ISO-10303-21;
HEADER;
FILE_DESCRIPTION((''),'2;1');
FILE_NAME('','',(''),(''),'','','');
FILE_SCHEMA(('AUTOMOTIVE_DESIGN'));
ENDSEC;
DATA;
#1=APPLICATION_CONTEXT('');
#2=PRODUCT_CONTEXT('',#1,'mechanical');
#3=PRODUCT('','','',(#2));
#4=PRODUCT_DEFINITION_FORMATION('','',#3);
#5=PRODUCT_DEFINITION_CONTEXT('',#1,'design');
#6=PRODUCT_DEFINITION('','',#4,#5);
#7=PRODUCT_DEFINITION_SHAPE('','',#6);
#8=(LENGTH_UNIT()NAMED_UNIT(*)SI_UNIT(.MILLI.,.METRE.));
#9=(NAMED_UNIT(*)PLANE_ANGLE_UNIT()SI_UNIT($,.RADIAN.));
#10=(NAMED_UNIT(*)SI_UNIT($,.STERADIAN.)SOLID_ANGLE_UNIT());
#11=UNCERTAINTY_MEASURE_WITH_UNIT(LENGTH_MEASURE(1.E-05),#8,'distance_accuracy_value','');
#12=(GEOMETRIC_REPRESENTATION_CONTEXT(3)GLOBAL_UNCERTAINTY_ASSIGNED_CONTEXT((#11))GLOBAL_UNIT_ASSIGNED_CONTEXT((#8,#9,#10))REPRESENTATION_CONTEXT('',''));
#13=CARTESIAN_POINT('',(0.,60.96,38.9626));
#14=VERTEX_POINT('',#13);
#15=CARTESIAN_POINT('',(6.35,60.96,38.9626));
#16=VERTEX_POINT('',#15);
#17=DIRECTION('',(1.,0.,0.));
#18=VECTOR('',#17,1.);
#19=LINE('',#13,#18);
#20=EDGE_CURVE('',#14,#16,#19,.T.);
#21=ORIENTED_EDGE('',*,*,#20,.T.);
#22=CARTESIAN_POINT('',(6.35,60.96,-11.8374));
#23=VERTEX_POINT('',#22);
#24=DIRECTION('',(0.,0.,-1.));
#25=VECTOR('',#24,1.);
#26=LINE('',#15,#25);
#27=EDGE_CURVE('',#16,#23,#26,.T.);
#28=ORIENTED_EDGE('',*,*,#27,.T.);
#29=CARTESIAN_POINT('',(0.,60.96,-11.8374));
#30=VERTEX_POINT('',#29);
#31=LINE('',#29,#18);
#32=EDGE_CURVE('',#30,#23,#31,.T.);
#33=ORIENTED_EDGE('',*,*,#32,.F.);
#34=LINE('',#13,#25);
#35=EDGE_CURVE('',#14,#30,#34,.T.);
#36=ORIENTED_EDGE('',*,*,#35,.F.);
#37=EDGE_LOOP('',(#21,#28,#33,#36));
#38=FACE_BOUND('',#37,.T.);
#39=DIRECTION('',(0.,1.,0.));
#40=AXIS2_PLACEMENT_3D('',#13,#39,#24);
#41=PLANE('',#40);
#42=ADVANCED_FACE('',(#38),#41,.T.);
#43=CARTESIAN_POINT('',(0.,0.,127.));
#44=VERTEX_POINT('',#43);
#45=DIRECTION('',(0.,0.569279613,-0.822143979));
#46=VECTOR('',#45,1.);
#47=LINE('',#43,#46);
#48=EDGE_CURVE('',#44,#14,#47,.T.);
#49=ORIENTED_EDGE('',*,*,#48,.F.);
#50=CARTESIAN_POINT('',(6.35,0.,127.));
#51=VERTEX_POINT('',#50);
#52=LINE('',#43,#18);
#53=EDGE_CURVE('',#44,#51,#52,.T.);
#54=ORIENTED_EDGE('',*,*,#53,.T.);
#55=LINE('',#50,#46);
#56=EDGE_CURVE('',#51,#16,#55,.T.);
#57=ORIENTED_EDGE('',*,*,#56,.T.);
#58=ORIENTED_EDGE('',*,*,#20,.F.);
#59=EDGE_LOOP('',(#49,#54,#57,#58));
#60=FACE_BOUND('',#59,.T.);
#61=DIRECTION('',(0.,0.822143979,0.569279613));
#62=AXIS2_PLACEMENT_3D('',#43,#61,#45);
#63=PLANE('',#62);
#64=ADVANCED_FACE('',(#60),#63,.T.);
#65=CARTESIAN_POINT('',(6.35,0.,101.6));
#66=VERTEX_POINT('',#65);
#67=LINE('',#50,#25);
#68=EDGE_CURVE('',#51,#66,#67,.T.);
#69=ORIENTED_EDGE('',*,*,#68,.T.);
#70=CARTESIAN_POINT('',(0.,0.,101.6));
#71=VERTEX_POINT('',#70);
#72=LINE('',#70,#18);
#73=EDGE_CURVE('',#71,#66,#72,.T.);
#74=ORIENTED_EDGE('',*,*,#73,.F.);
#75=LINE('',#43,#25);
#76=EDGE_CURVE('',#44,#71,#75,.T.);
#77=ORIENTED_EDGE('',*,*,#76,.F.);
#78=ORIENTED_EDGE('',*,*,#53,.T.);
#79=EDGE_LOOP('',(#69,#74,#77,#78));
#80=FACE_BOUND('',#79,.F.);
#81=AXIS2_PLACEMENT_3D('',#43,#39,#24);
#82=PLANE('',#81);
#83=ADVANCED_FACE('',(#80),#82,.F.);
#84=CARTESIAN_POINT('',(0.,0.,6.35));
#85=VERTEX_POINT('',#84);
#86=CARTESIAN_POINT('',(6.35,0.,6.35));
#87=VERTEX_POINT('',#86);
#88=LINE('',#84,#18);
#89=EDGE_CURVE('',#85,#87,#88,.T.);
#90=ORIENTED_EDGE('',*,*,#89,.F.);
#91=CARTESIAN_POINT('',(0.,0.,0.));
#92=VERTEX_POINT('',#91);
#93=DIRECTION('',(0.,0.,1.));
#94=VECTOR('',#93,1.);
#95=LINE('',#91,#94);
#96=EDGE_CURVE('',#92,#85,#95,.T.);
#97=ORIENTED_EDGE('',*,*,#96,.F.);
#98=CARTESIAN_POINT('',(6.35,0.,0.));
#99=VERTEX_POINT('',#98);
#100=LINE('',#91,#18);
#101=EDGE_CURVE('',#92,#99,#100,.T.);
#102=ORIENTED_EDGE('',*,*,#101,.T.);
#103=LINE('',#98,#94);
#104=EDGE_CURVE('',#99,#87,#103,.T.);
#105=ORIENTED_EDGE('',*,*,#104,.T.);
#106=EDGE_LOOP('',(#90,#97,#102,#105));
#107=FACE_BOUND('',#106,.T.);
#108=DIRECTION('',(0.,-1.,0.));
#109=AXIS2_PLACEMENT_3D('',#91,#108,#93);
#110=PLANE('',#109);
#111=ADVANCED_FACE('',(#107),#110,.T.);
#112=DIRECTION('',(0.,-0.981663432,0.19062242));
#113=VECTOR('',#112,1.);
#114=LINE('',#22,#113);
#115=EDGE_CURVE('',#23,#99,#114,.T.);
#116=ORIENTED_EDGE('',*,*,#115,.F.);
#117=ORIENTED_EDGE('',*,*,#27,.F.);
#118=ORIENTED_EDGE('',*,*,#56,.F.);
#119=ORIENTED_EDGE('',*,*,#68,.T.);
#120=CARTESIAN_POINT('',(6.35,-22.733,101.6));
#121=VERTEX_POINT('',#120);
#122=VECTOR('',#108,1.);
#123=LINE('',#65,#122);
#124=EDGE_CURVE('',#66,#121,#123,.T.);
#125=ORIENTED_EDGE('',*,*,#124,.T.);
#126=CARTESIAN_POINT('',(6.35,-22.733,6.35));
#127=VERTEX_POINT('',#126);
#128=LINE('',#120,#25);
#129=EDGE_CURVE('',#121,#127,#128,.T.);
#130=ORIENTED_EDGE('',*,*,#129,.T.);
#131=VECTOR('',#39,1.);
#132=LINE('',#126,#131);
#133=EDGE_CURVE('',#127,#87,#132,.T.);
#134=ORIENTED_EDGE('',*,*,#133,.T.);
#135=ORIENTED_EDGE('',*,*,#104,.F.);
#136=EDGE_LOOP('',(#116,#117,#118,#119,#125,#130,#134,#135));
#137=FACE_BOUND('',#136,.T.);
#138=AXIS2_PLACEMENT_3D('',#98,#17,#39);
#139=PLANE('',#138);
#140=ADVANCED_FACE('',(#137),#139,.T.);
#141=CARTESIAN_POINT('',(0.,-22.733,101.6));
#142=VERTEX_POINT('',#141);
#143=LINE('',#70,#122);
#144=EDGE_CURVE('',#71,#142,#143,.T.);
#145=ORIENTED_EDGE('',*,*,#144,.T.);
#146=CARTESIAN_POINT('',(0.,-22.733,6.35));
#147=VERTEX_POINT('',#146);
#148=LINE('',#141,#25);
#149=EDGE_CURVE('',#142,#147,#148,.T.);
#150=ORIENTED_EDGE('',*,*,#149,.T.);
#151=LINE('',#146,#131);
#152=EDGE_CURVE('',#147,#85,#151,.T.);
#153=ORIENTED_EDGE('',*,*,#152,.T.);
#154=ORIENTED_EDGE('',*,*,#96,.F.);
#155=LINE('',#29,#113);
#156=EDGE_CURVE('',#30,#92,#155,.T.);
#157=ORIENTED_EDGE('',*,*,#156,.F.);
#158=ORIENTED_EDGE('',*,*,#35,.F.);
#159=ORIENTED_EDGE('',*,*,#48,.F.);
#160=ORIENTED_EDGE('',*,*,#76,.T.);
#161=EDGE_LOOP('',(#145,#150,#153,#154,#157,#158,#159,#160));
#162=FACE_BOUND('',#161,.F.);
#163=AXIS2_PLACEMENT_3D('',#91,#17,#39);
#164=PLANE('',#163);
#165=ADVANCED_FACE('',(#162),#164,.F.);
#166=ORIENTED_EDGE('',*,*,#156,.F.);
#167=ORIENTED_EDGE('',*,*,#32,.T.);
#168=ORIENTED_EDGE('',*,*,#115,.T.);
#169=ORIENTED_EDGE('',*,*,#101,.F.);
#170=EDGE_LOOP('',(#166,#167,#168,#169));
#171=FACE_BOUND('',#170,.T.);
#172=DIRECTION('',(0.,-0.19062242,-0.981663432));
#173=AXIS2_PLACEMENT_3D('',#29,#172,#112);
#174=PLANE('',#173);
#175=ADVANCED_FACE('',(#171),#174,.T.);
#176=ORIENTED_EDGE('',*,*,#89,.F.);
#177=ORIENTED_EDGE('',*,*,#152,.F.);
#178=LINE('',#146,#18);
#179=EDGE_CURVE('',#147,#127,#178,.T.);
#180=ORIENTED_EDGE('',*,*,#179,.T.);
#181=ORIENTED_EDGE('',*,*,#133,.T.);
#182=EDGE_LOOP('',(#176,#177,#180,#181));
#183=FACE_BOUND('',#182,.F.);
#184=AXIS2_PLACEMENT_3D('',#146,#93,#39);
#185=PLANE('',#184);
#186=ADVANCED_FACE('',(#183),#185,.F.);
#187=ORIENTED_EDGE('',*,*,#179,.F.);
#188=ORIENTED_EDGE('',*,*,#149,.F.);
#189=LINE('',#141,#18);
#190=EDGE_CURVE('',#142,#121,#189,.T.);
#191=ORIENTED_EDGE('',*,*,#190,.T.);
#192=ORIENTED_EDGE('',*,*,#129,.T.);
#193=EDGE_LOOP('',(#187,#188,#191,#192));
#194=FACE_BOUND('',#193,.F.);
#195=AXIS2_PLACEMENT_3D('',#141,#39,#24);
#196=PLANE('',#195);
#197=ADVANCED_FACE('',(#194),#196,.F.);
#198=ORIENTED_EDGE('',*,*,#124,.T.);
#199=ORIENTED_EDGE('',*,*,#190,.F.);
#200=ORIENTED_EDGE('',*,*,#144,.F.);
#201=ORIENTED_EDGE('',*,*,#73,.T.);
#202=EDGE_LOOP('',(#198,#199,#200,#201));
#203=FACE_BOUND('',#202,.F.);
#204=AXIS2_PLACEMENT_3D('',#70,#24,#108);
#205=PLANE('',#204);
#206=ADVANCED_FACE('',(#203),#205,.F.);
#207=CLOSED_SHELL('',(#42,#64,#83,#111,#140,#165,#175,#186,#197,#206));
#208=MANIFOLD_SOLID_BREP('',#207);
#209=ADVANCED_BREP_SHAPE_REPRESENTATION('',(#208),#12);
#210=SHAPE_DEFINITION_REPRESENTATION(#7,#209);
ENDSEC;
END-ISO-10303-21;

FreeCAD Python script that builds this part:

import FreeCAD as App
import Part
import Sketcher

V = App.Vector
Q = App.Units.Quantity

doc = App.newDocument("Part")
body = doc.addObject("PartDesign::Body", "Body")

# Sketch on YZ plane
sketch1 = body.newObject("Sketcher::SketchObject", "Sketch")
sketch1.AttachmentSupport = (doc.getObject("YZ_Plane"), [""])
sketch1.MapMode = "FlatFace"
sketch1.addGeometry([
    Part.LineSegment(V(61, 39, 0), V(0, 127, 0)),  # 0
    Part.LineSegment(V(0, 127, 0), V(0, 102, 0)),  # 1
    Part.LineSegment(V(0, 102, 0), V(-23, 102, 0)),  # 2
    Part.LineSegment(V(-23, 102, 0), V(-23, 6, 0)),  # 3
    Part.LineSegment(V(-23, 6, 0), V(0, 6, 0)),  # 4
    Part.LineSegment(V(0, 6, 0), V(0, 0, 0)),  # 5
    Part.LineSegment(V(0, 0, 0), V(61, -12, 0)),  # 6
    Part.LineSegment(V(61, -12, 0), V(61, 39, 0)),  # 7
], False)
sketch1.addConstraint([
    Sketcher.Constraint("Coincident", 0, 2, 1, 1),
    Sketcher.Constraint("Coincident", 1, 2, 2, 1),
    Sketcher.Constraint("Coincident", 2, 2, 3, 1),
    Sketcher.Constraint("Coincident", 3, 2, 4, 1),
    Sketcher.Constraint("Coincident", 4, 2, 5, 1),
    Sketcher.Constraint("Coincident", 5, 2, 6, 1),
    Sketcher.Constraint("Coincident", 6, 2, 7, 1),
    Sketcher.Constraint("Coincident", 7, 2, 0, 1),
    Sketcher.Constraint("Vertical", 1),
    Sketcher.Constraint("Horizontal", 2),
    Sketcher.Constraint("Vertical", 3),
    Sketcher.Constraint("Horizontal", 4),
    Sketcher.Constraint("Vertical", 5),
    Sketcher.Constraint("Vertical", 7),
    Sketcher.Constraint("Coincident", 5, 2, -1, 1),
    Sketcher.Constraint("PointOnObject", 0, 2, -2),
    Sketcher.Constraint("DistanceY", 1, 2, 1, 1, Q("1 in")),
    Sketcher.Constraint("DistanceY", 7, 1, 7, 2, Q("2 in")),
    Sketcher.Constraint("DistanceY", -1, 1, 0, 2, Q("5 in")),
    Sketcher.Constraint("DistanceY", 3, 2, 3, 1, Q("3.75 in")),
    Sketcher.Constraint("DistanceX", 2, 2, 2, 1, Q("0.895 in")),
    Sketcher.Constraint("DistanceX", -1, 1, 6, 2, Q("2.4 in")),
    Sketcher.Constraint("Angle", 0, Q("124.7 deg")),
])
pad1 = body.newObject("PartDesign::Pad", "Pad")
pad1.Profile = sketch1
pad1.Length = Q("0.25 in")

doc.recompute()
